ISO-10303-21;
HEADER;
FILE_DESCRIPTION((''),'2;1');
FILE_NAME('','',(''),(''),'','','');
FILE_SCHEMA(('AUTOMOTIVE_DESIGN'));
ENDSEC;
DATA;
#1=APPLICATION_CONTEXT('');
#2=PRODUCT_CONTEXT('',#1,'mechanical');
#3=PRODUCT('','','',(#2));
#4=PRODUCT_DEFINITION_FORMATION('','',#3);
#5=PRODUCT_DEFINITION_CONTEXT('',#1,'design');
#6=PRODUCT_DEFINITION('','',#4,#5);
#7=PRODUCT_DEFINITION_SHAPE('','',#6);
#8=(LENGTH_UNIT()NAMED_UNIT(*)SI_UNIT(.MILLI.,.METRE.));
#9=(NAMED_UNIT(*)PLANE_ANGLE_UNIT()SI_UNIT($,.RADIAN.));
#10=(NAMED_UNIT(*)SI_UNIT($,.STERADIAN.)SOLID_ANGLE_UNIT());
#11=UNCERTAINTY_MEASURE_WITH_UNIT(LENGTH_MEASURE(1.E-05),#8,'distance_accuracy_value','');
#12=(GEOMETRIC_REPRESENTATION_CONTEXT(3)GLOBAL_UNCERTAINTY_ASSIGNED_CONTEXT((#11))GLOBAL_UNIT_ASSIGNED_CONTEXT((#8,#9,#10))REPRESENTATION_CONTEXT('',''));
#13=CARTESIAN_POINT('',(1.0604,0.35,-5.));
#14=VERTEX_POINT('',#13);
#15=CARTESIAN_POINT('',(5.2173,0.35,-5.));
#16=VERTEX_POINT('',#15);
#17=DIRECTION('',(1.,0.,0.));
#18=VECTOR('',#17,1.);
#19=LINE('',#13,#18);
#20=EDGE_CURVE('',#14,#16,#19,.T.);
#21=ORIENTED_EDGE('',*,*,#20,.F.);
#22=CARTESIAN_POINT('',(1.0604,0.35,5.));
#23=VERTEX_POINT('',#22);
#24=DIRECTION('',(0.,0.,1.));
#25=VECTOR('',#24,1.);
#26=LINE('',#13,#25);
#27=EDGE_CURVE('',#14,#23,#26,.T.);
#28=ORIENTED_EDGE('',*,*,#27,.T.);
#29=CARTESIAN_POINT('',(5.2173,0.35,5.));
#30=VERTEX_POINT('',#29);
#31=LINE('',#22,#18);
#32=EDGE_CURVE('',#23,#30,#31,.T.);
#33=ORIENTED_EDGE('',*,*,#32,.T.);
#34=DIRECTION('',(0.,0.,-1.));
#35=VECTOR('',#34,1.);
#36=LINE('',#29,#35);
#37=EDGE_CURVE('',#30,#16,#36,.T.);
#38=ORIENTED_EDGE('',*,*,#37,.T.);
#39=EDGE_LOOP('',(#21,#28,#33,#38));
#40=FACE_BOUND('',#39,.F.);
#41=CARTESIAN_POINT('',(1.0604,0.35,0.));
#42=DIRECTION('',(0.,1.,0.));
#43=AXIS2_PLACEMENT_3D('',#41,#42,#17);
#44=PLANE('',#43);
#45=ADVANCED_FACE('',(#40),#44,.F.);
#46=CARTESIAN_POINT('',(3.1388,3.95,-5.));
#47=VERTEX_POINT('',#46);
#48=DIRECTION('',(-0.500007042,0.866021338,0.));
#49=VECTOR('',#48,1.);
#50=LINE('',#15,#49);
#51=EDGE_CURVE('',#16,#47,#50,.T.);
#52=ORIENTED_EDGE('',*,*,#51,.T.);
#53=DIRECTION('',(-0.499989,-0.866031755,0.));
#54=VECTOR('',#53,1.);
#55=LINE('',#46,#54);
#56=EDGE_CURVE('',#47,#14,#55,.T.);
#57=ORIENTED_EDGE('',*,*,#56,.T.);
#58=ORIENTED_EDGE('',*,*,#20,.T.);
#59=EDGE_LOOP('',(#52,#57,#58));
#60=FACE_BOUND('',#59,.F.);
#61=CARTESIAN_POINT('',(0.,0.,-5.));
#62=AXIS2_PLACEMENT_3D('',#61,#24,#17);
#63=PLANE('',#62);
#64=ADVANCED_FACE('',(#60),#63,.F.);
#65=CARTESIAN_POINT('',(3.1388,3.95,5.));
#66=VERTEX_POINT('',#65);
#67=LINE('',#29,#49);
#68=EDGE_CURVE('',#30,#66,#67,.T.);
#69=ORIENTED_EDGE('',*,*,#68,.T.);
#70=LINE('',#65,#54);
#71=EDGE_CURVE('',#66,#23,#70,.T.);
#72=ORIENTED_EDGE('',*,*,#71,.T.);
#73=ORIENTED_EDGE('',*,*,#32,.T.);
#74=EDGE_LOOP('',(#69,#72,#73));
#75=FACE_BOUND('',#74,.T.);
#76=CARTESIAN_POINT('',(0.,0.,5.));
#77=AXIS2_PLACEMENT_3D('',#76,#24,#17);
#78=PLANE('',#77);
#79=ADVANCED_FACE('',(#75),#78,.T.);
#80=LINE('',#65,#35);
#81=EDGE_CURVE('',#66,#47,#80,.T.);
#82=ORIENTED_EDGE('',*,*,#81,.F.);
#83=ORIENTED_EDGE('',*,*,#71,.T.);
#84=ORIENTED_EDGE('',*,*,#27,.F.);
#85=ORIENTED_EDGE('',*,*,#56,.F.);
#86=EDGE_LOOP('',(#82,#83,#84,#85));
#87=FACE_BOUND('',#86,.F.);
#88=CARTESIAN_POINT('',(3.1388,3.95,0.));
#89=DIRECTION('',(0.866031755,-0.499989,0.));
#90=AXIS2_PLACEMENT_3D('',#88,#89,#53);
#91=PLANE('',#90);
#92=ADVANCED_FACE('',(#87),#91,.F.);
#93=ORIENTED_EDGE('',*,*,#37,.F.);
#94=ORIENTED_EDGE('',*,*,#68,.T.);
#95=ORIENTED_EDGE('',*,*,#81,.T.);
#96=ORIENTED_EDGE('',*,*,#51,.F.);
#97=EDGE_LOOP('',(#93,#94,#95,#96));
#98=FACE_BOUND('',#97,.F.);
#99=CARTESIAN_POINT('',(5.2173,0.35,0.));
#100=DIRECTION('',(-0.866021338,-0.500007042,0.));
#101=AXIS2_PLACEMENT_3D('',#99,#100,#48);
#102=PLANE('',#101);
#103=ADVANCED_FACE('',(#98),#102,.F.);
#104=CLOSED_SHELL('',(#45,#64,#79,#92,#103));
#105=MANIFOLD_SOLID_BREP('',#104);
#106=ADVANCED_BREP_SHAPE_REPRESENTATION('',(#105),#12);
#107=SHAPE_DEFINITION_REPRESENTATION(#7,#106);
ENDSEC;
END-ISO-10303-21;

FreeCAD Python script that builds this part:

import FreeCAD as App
import Part
import Sketcher
Q = App.Units.Quantity

doc = App.newDocument("Part")
body = doc.addObject("PartDesign::Body", "Body")

# Sketch on XY plane
sketch1 = body.newObject("Sketcher::SketchObject", "Sketch")
sketch1.AttachmentSupport = (doc.getObject("XY_Plane"), [""])
sketch1.MapMode = "FlatFace"
sketch1.addGeometry([
    Part.LineSegment(App.Vector(3.1, 4, 0), App.Vector(1.1, 0.3, 0)),
    Part.LineSegment(App.Vector(1.1, 0.3, 0), App.Vector(5.2, 0.3, 0)),
    Part.LineSegment(App.Vector(5.2, 0.3, 0), App.Vector(3.1, 4, 0)),
], False)
sketch1.addConstraint([
    Sketcher.Constraint("Coincident", 0, 2, 1, 1),
    Sketcher.Constraint("Coincident", 1, 2, 2, 1),
    Sketcher.Constraint("Coincident", 2, 2, 0, 1),
    Sketcher.Constraint("Horizontal", 1),
    Sketcher.Constraint("Equal", 0, 2),
    Sketcher.Constraint("Angle", 0, Q("-119.9993 deg")),
    Sketcher.Constraint("DistanceY", 0, 2, 2, 2, 3.6),
    Sketcher.Constraint("DistanceY", -1, 1, 0, 2, 0.35),
    Sketcher.Constraint("DistanceX", -1, 1, 0, 2, 1.0604),
])
pad1 = body.newObject("PartDesign::Pad", "Pad")
pad1.Profile = sketch1
pad1.Length = 10
pad1.Midplane = True

doc.recompute()
